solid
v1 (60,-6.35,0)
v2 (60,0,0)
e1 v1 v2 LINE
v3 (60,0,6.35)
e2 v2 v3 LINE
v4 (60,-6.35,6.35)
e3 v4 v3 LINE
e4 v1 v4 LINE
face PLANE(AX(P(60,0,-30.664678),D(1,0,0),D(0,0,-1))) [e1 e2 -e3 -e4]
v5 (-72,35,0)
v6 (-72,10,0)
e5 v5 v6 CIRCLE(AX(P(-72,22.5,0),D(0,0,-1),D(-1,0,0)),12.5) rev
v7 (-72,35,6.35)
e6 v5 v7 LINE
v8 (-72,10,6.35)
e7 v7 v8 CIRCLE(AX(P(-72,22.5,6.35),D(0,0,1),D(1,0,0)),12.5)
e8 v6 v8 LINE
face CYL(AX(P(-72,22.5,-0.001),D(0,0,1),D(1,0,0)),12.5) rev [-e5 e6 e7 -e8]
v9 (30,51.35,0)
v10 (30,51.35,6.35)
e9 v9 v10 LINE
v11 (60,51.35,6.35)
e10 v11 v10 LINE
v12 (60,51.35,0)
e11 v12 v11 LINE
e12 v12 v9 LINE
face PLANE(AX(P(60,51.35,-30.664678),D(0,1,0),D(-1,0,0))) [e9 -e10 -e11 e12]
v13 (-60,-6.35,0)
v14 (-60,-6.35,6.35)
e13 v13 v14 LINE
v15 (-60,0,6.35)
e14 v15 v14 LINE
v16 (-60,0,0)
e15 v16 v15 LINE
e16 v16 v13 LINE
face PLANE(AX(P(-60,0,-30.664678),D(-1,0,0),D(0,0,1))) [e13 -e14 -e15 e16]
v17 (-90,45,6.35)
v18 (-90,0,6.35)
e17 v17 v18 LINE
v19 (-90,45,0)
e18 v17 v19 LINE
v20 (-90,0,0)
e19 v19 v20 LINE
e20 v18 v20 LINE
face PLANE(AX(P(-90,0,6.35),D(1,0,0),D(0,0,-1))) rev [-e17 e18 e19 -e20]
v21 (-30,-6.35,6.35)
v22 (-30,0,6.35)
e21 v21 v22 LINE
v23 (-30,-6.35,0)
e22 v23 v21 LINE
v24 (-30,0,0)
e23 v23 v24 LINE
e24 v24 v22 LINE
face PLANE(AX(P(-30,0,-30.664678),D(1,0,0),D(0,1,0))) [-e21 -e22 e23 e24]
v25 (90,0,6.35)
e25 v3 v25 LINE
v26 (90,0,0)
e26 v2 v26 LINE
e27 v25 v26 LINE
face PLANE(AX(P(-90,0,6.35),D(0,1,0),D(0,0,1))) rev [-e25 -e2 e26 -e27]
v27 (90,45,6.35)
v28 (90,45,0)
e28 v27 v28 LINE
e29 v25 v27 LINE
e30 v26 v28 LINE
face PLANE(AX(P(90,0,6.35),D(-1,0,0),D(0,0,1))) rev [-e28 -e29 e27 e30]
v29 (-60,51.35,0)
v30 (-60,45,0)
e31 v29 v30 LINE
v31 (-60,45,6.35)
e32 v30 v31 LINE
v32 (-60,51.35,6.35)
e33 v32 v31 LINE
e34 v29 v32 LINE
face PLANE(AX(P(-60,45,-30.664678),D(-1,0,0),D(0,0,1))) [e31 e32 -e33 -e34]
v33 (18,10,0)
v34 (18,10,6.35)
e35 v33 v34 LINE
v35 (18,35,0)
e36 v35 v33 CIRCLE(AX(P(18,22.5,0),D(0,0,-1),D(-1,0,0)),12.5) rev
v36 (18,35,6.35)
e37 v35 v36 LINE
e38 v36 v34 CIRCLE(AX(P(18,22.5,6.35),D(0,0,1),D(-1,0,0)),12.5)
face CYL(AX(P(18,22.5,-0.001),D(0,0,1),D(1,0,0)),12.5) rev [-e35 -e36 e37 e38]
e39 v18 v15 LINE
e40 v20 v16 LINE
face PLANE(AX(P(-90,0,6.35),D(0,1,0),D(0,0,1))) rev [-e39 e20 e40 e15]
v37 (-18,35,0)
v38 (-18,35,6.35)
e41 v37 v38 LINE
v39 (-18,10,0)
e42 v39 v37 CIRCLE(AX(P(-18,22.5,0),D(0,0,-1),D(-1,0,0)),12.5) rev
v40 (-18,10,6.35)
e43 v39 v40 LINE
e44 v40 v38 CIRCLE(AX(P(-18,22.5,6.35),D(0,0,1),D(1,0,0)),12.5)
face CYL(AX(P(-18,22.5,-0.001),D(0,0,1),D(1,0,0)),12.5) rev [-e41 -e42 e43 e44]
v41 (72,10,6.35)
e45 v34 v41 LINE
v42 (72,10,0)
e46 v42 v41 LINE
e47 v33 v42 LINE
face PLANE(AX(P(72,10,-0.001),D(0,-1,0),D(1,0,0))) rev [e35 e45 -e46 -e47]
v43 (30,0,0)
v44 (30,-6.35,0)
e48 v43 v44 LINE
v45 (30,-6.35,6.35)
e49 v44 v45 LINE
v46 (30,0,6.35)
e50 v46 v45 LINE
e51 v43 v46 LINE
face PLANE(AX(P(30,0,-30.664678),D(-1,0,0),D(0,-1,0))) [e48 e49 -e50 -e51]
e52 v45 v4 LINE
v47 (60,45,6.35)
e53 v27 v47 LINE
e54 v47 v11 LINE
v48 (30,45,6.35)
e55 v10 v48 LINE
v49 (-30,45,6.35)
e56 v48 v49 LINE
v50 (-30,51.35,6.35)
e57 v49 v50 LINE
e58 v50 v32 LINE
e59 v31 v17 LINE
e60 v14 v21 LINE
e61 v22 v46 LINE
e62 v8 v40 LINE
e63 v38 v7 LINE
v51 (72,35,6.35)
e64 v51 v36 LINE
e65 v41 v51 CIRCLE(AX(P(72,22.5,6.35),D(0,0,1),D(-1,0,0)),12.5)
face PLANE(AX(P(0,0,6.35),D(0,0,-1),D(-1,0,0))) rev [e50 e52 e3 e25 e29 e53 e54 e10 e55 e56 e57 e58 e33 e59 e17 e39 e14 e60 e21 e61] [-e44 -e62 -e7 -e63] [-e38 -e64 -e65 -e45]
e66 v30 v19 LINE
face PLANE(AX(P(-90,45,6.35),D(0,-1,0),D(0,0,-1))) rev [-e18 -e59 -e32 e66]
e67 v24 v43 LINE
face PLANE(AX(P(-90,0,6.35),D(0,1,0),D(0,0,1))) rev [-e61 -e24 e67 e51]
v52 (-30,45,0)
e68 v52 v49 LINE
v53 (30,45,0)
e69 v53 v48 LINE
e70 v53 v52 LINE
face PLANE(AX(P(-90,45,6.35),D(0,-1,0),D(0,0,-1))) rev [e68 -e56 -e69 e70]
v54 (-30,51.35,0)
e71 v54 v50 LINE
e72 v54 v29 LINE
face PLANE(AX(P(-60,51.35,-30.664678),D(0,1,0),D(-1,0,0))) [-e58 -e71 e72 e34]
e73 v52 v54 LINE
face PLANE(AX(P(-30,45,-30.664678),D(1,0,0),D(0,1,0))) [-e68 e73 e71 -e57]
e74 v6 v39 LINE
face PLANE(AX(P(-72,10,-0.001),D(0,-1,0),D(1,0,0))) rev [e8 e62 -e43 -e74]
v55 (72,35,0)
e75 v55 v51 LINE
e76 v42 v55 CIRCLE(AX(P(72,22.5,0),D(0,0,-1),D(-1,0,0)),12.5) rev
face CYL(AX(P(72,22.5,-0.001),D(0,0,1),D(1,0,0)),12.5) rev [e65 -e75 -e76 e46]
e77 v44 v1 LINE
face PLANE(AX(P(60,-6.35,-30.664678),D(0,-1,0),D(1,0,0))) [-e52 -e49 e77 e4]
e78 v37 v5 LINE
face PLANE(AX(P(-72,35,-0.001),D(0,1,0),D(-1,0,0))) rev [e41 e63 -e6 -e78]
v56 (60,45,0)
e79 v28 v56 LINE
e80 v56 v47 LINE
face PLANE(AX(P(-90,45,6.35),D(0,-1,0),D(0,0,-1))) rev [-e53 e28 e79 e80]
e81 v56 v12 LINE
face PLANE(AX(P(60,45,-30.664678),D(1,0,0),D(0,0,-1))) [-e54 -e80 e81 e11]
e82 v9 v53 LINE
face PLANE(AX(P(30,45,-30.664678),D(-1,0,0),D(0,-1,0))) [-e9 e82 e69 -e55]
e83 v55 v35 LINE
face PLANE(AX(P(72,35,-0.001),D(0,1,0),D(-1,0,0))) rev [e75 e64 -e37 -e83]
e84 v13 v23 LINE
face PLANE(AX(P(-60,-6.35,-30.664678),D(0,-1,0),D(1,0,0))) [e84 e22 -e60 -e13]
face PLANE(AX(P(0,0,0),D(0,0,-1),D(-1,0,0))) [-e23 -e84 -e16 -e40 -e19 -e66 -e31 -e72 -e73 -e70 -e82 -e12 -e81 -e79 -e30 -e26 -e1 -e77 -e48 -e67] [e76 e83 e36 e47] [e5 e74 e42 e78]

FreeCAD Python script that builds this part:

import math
import FreeCAD as App
import Part
import Sketcher


def add_polygon(sketch, points):
    """Adds a closed chain of lines whose ends are joined by coincident constraints."""
    first, n = sketch.GeometryCount, len(points)
    for a, b in zip(points, points[1:] + points[:1]):
        sketch.addGeometry(Part.LineSegment(App.Vector(*a, 0), App.Vector(*b, 0)), False)
    for i in range(n):
        sketch.addConstraint(Sketcher.Constraint("Coincident", first + i, 2, first + (i + 1) % n, 1))

doc = App.newDocument("Part")
params = doc.addObject("Spreadsheet::Sheet", "Params")
for row, (alias, value) in enumerate([
    ("sketch1_width", "180 mm"),
    ("sketch1_height", "45 mm"),
    ("pad1_length", "6.35 mm"),
    ("sketch2_radius", "12.5 mm"),
    ("sketch2_width", "54 mm"),
    ("sketch3_radius", "12.5 mm"),
    ("sketch3_width", "54 mm"),
    ("sketch4_width", "30 mm"),
    ("sketch4_height", "6.35 mm"),
    ("pad2_length", "6.35 mm"),
], start=1):
    params.set(f"A{row}", alias)
    params.set(f"B{row}", "=" + value)
    params.setAlias(f"B{row}", alias)

body = doc.addObject("PartDesign::Body", "Body")

# Sketch on XY plane
sketch1 = body.newObject("Sketcher::SketchObject", "Sketch")
sketch1.AttachmentSupport = (doc.getObject("XY_Plane"), [""])
sketch1.MapMode = "FlatFace"
add_polygon(sketch1, [(-90, 45), (-90, 0), (90, 0), (90, 45)])  # lines 0-3
sketch1.addConstraint([
    Sketcher.Constraint("Vertical", 0),
    Sketcher.Constraint("Horizontal", 1),
    Sketcher.Constraint("Vertical", 2),
    Sketcher.Constraint("Horizontal", 3),
    Sketcher.Constraint("Symmetric", 0, 2, 1, 2, -1, 1),
    Sketcher.Constraint("DistanceX", 1, 1, 1, 2, 180.0),
    Sketcher.Constraint("DistanceY", 0, 2, 0, 1, 45.0),
])
sketch1.setExpression("Constraints[9]", "Params.sketch1_width")
sketch1.setExpression("Constraints[10]", "Params.sketch1_height")
pad1 = body.newObject("PartDesign::Pad", "Pad")
pad1.Profile = sketch1
pad1.setExpression("Length", "Params.pad1_length")

# Sketch on XY plane
sketch2 = body.newObject("Sketcher::SketchObject", "Sketch001")
sketch2.AttachmentSupport = (doc.getObject("XY_Plane"), [""])
sketch2.MapMode = "FlatFace"
sketch2.AttachmentOffset = App.Placement(App.Vector(0, 0, 6.35), App.Rotation())
sketch2.addGeometry([
    Part.LineSegment(App.Vector(-18, 35, 0), App.Vector(-72, 35, 0)),
    Part.ArcOfCircle(Part.Circle(App.Vector(-72, 22.5, 0), App.Vector(0, 0, 1), 12.5), math.radians(90), math.radians(270)),
    Part.LineSegment(App.Vector(-72, 10, 0), App.Vector(-18, 10, 0)),
    Part.ArcOfCircle(Part.Circle(App.Vector(-18, 22.5, 0), App.Vector(0, 0, 1), 12.5), math.radians(-90), math.radians(90)),
], False)
sketch2.addConstraint([
    Sketcher.Constraint("Tangent", 0, 2, 1, 1),
    Sketcher.Constraint("Tangent", 1, 2, 2, 1),
    Sketcher.Constraint("Tangent", 2, 2, 3, 1),
    Sketcher.Constraint("Tangent", 3, 2, 0, 1),
    Sketcher.Constraint("Horizontal", 0),
    Sketcher.Constraint("Horizontal", 2),
    Sketcher.Constraint("Radius", 1, 12.5),
    Sketcher.Constraint("DistanceX", 0, 2, 0, 1, 54.0),
    Sketcher.Constraint("DistanceX", 1, 3, -1, 1, 72.0),
    Sketcher.Constraint("DistanceY", -1, 1, 0, 2, 35.0),
])
sketch2.setExpression("Constraints[6]", "Params.sketch2_radius")
sketch2.setExpression("Constraints[7]", "Params.sketch2_width")
pocket1 = body.newObject("PartDesign::Pocket", "Pocket")
pocket1.Profile = sketch2
pocket1.Type = "UpToFirst"

# Sketch on XY plane
sketch3 = body.newObject("Sketcher::SketchObject", "Sketch002")
sketch3.AttachmentSupport = (doc.getObject("XY_Plane"), [""])
sketch3.MapMode = "FlatFace"
sketch3.AttachmentOffset = App.Placement(App.Vector(0, 0, 6.35), App.Rotation())
sketch3.addGeometry([
    Part.LineSegment(App.Vector(72, 35, 0), App.Vector(18, 35, 0)),
    Part.ArcOfCircle(Part.Circle(App.Vector(18, 22.5, 0), App.Vector(0, 0, 1), 12.5), math.radians(90), math.radians(270)),
    Part.LineSegment(App.Vector(18, 10, 0), App.Vector(72, 10, 0)),
    Part.ArcOfCircle(Part.Circle(App.Vector(72, 22.5, 0), App.Vector(0, 0, 1), 12.5), math.radians(-90), math.radians(90)),
], False)
sketch3.addConstraint([
    Sketcher.Constraint("Tangent", 0, 2, 1, 1),
    Sketcher.Constraint("Tangent", 1, 2, 2, 1),
    Sketcher.Constraint("Tangent", 2, 2, 3, 1),
    Sketcher.Constraint("Tangent", 3, 2, 0, 1),
    Sketcher.Constraint("Horizontal", 0),
    Sketcher.Constraint("Horizontal", 2),
    Sketcher.Constraint("Radius", 1, 12.5),
    Sketcher.Constraint("DistanceX", 0, 2, 0, 1, 54.0),
    Sketcher.Constraint("DistanceX", -1, 1, 1, 3, 18.0),
    Sketcher.Constraint("DistanceY", -1, 1, 0, 2, 35.0),
])
sketch3.setExpression("Constraints[6]", "Params.sketch3_radius")
sketch3.setExpression("Constraints[7]", "Params.sketch3_width")
pocket2 = body.newObject("PartDesign::Pocket", "Pocket001")
pocket2.Profile = sketch3
pocket2.Type = "UpToFirst"

# Sketch on XY plane
sketch4 = body.newObject("Sketcher::SketchObject", "Sketch003")
sketch4.AttachmentSupport = (doc.getObject("XY_Plane"), [""])
sketch4.MapMode = "FlatFace"
sketch4.AttachmentOffset = App.Placement(App.Vector(0, 0, 6.35), App.Rotation())
add_polygon(sketch4, [(-60, 51.35), (-60, 45), (-30, 45), (-30, 51.35)])  # lines 0-3
add_polygon(sketch4, [(-60, 0), (-60, -6.35), (-30, -6.35), (-30, 0)])  # lines 4-7
add_polygon(sketch4, [(30, 0), (30, -6.35), (60, -6.35), (60, 0)])  # lines 8-11
add_polygon(sketch4, [(30, 51.35), (30, 45), (60, 45), (60, 51.35)])  # lines 12-15
sketch4.addConstraint([
    Sketcher.Constraint("Vertical", 0),
    Sketcher.Constraint("Horizontal", 1),
    Sketcher.Constraint("Vertical", 2),
    Sketcher.Constraint("Horizontal", 3),
    Sketcher.Constraint("Vertical", 4),
    Sketcher.Constraint("Horizontal", 5),
    Sketcher.Constraint("Vertical", 6),
    Sketcher.Constraint("Horizontal", 7),
    Sketcher.Constraint("Vertical", 8),
    Sketcher.Constraint("Horizontal", 9),
    Sketcher.Constraint("Vertical", 10),
    Sketcher.Constraint("Horizontal", 11),
    Sketcher.Constraint("Vertical", 12),
    Sketcher.Constraint("Horizontal", 13),
    Sketcher.Constraint("Vertical", 14),
    Sketcher.Constraint("Horizontal", 15),
    Sketcher.Constraint("Symmetric", 7, 2, 10, 2, -1, 1),
    Sketcher.Constraint("Symmetric", 5, 2, 8, 2, -2),
    Sketcher.Constraint("Symmetric", 1, 2, 12, 2, -2),
    Sketcher.Constraint("Symmetric", 3, 2, 14, 2, -2),
    Sketcher.Constraint("PointOnObject", 6, 2, -1),
    Sketcher.Constraint("Vertical", 3, 2, 4, 2),
    Sketcher.Constraint("Vertical", 2, 2, 5, 2),
    Sketcher.Constraint("Equal", 2, 4),
    Sketcher.Constraint("DistanceX", 1, 1, 1, 2, 30.0),
    Sketcher.Constraint("DistanceX", 0, 2, -1, 1, 60.0),
    Sketcher.Constraint("DistanceY", -1, 1, 0, 2, 45.0),
    Sketcher.Constraint("DistanceY", 0, 2, 0, 1, 6.35),
])
sketch4.setExpression("Constraints[40]", "Params.sketch4_width")
sketch4.setExpression("Constraints[43]", "Params.sketch4_height")
pad2 = body.newObject("PartDesign::Pad", "Pad001")
pad2.Profile = sketch4
pad2.setExpression("Length", "Params.pad2_length")
pad2.Reversed = True

doc.recompute()
